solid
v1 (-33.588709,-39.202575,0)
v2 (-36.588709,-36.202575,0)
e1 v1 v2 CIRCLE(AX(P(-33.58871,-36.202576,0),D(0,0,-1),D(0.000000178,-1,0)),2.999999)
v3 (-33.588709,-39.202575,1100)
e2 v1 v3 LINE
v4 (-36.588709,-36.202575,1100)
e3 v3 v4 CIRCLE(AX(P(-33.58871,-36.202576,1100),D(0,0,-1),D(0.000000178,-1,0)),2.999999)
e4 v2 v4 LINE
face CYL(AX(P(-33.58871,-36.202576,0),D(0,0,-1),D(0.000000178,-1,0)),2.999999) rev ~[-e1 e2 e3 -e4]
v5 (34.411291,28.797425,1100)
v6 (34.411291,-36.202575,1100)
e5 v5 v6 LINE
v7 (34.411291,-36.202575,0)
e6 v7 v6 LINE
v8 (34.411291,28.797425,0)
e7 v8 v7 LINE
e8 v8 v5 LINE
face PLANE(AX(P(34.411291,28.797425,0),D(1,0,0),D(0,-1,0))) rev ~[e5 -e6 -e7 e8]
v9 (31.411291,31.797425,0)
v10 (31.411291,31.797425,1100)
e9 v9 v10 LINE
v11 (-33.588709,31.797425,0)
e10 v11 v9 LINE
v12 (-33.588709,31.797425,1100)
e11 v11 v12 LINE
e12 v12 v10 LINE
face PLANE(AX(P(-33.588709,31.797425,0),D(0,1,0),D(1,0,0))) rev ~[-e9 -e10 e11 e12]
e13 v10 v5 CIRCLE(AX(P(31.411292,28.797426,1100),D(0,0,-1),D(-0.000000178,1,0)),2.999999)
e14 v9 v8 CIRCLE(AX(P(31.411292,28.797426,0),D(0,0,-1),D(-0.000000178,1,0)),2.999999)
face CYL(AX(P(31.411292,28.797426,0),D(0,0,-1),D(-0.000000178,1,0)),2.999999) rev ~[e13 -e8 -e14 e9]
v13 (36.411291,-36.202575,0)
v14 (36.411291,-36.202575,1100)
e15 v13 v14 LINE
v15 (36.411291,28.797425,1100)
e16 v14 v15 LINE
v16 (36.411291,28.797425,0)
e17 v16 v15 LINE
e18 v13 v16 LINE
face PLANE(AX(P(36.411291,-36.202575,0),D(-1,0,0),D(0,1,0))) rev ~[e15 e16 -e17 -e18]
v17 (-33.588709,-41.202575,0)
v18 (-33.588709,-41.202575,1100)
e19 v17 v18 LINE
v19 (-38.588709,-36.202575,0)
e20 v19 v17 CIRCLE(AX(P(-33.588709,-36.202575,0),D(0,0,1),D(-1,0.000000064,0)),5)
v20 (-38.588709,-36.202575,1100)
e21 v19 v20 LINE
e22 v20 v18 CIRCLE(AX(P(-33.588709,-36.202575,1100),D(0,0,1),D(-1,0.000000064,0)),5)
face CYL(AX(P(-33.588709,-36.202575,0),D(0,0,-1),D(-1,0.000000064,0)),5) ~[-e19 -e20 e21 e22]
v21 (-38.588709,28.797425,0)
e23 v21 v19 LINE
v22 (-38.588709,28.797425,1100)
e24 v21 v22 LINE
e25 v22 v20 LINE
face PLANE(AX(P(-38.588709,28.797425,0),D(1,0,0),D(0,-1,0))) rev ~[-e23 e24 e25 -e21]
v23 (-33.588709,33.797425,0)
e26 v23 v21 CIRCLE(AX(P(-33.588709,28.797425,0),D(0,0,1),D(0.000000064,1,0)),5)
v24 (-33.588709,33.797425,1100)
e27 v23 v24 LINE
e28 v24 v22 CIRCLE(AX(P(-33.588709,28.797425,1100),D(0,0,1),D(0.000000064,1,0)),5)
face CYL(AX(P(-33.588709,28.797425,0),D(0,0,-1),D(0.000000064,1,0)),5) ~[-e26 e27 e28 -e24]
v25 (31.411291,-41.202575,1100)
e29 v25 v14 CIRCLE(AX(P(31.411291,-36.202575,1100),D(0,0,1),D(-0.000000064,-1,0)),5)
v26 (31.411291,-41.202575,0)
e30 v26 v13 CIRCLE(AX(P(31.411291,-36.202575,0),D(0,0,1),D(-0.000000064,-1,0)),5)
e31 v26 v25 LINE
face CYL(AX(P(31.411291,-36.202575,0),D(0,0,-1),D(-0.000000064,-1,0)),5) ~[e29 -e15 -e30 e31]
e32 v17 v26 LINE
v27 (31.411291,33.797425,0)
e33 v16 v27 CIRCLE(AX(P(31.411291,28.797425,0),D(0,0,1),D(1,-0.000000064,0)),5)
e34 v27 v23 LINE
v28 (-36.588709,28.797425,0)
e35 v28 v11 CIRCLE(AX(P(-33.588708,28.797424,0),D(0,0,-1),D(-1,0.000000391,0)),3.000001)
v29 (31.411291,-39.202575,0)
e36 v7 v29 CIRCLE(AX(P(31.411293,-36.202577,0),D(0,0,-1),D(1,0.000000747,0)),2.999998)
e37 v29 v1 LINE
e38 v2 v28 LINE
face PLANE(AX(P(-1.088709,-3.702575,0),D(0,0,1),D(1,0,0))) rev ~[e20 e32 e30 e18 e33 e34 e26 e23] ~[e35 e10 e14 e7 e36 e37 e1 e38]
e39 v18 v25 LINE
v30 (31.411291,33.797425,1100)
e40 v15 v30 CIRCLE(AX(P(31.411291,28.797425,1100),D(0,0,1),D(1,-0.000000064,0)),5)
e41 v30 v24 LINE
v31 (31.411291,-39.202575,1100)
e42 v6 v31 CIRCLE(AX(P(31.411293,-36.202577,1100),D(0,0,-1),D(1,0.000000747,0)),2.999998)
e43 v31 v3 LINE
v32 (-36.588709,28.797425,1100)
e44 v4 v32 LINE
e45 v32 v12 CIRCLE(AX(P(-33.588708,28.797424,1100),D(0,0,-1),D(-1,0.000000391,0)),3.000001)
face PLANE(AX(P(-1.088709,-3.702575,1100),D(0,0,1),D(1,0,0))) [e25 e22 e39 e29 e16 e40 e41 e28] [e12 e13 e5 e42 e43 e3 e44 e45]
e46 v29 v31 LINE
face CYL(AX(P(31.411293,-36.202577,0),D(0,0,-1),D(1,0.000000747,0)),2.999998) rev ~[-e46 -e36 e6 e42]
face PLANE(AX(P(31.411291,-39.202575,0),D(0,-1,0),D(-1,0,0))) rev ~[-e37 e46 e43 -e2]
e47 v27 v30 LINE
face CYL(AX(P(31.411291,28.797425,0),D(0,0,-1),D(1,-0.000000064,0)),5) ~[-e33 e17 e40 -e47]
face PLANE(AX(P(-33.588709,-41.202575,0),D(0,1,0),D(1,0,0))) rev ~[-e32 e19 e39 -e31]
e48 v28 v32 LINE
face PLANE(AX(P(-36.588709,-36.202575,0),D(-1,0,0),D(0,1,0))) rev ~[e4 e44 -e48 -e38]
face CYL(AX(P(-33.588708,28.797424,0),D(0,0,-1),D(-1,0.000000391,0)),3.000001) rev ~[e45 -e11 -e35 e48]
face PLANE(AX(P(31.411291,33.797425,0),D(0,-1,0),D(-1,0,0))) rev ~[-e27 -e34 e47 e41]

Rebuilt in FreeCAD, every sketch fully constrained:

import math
import FreeCAD as App
import Part
import Sketcher
from FreeCAD import Vector
Q = App.Units.Quantity

doc = App.newDocument("Part")
body = doc.addObject("PartDesign::Body", "Body")

sketch1 = body.newObject("Sketcher::SketchObject", "Sketch")
sketch1.AttachmentSupport = (doc.getObject("XY_Plane"), [""])
sketch1.MapMode = "FlatFace"
sketch1.addGeometry(Part.LineSegment(Vector(31.411291, 33.797425, 0), Vector(-33.588709, 33.797425, 0)), False)
sketch1.addGeometry(Part.ArcOfCircle(Part.Circle(Vector(-33.588709, 28.797425, 0), Vector(0, 0, 1), 5), math.radians(89.999996), math.radians(180.000004)), False)
sketch1.addGeometry(Part.LineSegment(Vector(-38.588709, 28.797425, 0), Vector(-38.588709, -36.202575, 0)), False)
sketch1.addGeometry(Part.ArcOfCircle(Part.Circle(Vector(-33.588709, -36.202575, 0), Vector(0, 0, 1), 5), math.radians(179.999996), math.radians(270.000004)), False)
sketch1.addGeometry(Part.LineSegment(Vector(-33.588709, -41.202575, 0), Vector(31.411291, -41.202575, 0)), False)
sketch1.addGeometry(Part.ArcOfCircle(Part.Circle(Vector(31.411291, -36.202575, 0), Vector(0, 0, 1), 5), math.radians(-90.000004), math.radians(0.000004)), False)
sketch1.addGeometry(Part.LineSegment(Vector(36.411291, -36.202575, 0), Vector(36.411291, 28.797425, 0)), False)
sketch1.addGeometry(Part.ArcOfCircle(Part.Circle(Vector(31.411291, 28.797425, 0), Vector(0, 0, 1), 5), math.radians(-0.000004), math.radians(90.000004)), False)
sketch1.addGeometry(Part.ArcOfCircle(Part.Circle(Vector(31.411293, -36.202577, 0), Vector(0, 0, 1), 2.999998), math.radians(-90.000043), math.radians(0.000043)), False)
sketch1.addGeometry(Part.LineSegment(Vector(31.411291, -39.202575, 0), Vector(-33.588709, -39.202575, 0)), False)
sketch1.addGeometry(Part.ArcOfCircle(Part.Circle(Vector(-33.58871, -36.202576, 0), Vector(0, 0, 1), 2.999999), math.radians(179.99999), math.radians(270.00001)), False)
sketch1.addGeometry(Part.LineSegment(Vector(-36.588709, -36.202575, 0), Vector(-36.588709, 28.797425, 0)), False)
sketch1.addGeometry(Part.ArcOfCircle(Part.Circle(Vector(-33.588708, 28.797424, 0), Vector(0, 0, 1), 3.000001), math.radians(90.000022), math.radians(179.999978)), False)
sketch1.addGeometry(Part.LineSegment(Vector(-33.588709, 31.797425, 0), Vector(31.411291, 31.797425, 0)), False)
sketch1.addGeometry(Part.ArcOfCircle(Part.Circle(Vector(31.411292, 28.797426, 0), Vector(0, 0, 1), 2.999999), math.radians(-0.00001), math.radians(90.00001)), False)
sketch1.addGeometry(Part.LineSegment(Vector(34.411291, 28.797425, 0), Vector(34.411291, -36.202575, 0)), False)
sketch1.addConstraint(Sketcher.Constraint("Tangent", 0, 2, 1, 1))
sketch1.addConstraint(Sketcher.Constraint("Tangent", 1, 2, 2, 1))
sketch1.addConstraint(Sketcher.Constraint("Tangent", 2, 2, 3, 1))
sketch1.addConstraint(Sketcher.Constraint("Tangent", 3, 2, 4, 1))
sketch1.addConstraint(Sketcher.Constraint("Tangent", 4, 2, 5, 1))
sketch1.addConstraint(Sketcher.Constraint("Tangent", 5, 2, 6, 1))
sketch1.addConstraint(Sketcher.Constraint("Tangent", 6, 2, 7, 1))
sketch1.addConstraint(Sketcher.Constraint("Tangent", 7, 2, 0, 1))
sketch1.addConstraint(Sketcher.Constraint("Tangent", 8, 1, 9, 1))
sketch1.addConstraint(Sketcher.Constraint("Tangent", 9, 2, 10, 2))
sketch1.addConstraint(Sketcher.Constraint("Tangent", 10, 1, 11, 1))
sketch1.addConstraint(Sketcher.Constraint("Tangent", 11, 2, 12, 2))
sketch1.addConstraint(Sketcher.Constraint("Tangent", 12, 1, 13, 1))
sketch1.addConstraint(Sketcher.Constraint("Tangent", 13, 2, 14, 2))
sketch1.addConstraint(Sketcher.Constraint("Tangent", 14, 1, 15, 1))
sketch1.addConstraint(Sketcher.Constraint("Tangent", 15, 2, 8, 2))
sketch1.addConstraint(Sketcher.Constraint("Horizontal", 0))
sketch1.addConstraint(Sketcher.Constraint("Vertical", 2))
sketch1.addConstraint(Sketcher.Constraint("Horizontal", 4))
sketch1.addConstraint(Sketcher.Constraint("Vertical", 6))
sketch1.addConstraint(Sketcher.Constraint("Horizontal", 9))
sketch1.addConstraint(Sketcher.Constraint("Vertical", 11))
sketch1.addConstraint(Sketcher.Constraint("Horizontal", 13))
sketch1.addConstraint(Sketcher.Constraint("Vertical", 15))
sketch1.addConstraint(Sketcher.Constraint("Coincident", 8, 3, 5, 3))
sketch1.addConstraint(Sketcher.Constraint("Coincident", 10, 3, 3, 3))
sketch1.addConstraint(Sketcher.Constraint("Coincident", 12, 3, 1, 3))
sketch1.addConstraint(Sketcher.Constraint("Equal", 1, 3))
sketch1.addConstraint(Sketcher.Constraint("Equal", 3, 5))
sketch1.addConstraint(Sketcher.Constraint("Equal", 5, 7))
sketch1.addConstraint(Sketcher.Constraint("Equal", 12, 14))
sketch1.addConstraint(Sketcher.Constraint("Equal", 13, 2))
sketch1.addConstraint(Sketcher.Constraint("Radius", 1, Q("5 mm")))
sketch1.addConstraint(Sketcher.Constraint("Radius", 10, Q("2.999999 mm")))
sketch1.addConstraint(Sketcher.Constraint("DistanceX", 0, 2, 0, 1, Q("65 mm")))
sketch1.addConstraint(Sketcher.Constraint("DistanceX", 1, 3, -1, 1, Q("33.588709 mm")))
sketch1.addConstraint(Sketcher.Constraint("DistanceY", -1, 1, 1, 3, Q("28.797425 mm")))
pad1 = body.newObject("PartDesign::Pad", "Pad")
pad1.Profile = sketch1
pad1.Length = 1100

doc.recompute()
